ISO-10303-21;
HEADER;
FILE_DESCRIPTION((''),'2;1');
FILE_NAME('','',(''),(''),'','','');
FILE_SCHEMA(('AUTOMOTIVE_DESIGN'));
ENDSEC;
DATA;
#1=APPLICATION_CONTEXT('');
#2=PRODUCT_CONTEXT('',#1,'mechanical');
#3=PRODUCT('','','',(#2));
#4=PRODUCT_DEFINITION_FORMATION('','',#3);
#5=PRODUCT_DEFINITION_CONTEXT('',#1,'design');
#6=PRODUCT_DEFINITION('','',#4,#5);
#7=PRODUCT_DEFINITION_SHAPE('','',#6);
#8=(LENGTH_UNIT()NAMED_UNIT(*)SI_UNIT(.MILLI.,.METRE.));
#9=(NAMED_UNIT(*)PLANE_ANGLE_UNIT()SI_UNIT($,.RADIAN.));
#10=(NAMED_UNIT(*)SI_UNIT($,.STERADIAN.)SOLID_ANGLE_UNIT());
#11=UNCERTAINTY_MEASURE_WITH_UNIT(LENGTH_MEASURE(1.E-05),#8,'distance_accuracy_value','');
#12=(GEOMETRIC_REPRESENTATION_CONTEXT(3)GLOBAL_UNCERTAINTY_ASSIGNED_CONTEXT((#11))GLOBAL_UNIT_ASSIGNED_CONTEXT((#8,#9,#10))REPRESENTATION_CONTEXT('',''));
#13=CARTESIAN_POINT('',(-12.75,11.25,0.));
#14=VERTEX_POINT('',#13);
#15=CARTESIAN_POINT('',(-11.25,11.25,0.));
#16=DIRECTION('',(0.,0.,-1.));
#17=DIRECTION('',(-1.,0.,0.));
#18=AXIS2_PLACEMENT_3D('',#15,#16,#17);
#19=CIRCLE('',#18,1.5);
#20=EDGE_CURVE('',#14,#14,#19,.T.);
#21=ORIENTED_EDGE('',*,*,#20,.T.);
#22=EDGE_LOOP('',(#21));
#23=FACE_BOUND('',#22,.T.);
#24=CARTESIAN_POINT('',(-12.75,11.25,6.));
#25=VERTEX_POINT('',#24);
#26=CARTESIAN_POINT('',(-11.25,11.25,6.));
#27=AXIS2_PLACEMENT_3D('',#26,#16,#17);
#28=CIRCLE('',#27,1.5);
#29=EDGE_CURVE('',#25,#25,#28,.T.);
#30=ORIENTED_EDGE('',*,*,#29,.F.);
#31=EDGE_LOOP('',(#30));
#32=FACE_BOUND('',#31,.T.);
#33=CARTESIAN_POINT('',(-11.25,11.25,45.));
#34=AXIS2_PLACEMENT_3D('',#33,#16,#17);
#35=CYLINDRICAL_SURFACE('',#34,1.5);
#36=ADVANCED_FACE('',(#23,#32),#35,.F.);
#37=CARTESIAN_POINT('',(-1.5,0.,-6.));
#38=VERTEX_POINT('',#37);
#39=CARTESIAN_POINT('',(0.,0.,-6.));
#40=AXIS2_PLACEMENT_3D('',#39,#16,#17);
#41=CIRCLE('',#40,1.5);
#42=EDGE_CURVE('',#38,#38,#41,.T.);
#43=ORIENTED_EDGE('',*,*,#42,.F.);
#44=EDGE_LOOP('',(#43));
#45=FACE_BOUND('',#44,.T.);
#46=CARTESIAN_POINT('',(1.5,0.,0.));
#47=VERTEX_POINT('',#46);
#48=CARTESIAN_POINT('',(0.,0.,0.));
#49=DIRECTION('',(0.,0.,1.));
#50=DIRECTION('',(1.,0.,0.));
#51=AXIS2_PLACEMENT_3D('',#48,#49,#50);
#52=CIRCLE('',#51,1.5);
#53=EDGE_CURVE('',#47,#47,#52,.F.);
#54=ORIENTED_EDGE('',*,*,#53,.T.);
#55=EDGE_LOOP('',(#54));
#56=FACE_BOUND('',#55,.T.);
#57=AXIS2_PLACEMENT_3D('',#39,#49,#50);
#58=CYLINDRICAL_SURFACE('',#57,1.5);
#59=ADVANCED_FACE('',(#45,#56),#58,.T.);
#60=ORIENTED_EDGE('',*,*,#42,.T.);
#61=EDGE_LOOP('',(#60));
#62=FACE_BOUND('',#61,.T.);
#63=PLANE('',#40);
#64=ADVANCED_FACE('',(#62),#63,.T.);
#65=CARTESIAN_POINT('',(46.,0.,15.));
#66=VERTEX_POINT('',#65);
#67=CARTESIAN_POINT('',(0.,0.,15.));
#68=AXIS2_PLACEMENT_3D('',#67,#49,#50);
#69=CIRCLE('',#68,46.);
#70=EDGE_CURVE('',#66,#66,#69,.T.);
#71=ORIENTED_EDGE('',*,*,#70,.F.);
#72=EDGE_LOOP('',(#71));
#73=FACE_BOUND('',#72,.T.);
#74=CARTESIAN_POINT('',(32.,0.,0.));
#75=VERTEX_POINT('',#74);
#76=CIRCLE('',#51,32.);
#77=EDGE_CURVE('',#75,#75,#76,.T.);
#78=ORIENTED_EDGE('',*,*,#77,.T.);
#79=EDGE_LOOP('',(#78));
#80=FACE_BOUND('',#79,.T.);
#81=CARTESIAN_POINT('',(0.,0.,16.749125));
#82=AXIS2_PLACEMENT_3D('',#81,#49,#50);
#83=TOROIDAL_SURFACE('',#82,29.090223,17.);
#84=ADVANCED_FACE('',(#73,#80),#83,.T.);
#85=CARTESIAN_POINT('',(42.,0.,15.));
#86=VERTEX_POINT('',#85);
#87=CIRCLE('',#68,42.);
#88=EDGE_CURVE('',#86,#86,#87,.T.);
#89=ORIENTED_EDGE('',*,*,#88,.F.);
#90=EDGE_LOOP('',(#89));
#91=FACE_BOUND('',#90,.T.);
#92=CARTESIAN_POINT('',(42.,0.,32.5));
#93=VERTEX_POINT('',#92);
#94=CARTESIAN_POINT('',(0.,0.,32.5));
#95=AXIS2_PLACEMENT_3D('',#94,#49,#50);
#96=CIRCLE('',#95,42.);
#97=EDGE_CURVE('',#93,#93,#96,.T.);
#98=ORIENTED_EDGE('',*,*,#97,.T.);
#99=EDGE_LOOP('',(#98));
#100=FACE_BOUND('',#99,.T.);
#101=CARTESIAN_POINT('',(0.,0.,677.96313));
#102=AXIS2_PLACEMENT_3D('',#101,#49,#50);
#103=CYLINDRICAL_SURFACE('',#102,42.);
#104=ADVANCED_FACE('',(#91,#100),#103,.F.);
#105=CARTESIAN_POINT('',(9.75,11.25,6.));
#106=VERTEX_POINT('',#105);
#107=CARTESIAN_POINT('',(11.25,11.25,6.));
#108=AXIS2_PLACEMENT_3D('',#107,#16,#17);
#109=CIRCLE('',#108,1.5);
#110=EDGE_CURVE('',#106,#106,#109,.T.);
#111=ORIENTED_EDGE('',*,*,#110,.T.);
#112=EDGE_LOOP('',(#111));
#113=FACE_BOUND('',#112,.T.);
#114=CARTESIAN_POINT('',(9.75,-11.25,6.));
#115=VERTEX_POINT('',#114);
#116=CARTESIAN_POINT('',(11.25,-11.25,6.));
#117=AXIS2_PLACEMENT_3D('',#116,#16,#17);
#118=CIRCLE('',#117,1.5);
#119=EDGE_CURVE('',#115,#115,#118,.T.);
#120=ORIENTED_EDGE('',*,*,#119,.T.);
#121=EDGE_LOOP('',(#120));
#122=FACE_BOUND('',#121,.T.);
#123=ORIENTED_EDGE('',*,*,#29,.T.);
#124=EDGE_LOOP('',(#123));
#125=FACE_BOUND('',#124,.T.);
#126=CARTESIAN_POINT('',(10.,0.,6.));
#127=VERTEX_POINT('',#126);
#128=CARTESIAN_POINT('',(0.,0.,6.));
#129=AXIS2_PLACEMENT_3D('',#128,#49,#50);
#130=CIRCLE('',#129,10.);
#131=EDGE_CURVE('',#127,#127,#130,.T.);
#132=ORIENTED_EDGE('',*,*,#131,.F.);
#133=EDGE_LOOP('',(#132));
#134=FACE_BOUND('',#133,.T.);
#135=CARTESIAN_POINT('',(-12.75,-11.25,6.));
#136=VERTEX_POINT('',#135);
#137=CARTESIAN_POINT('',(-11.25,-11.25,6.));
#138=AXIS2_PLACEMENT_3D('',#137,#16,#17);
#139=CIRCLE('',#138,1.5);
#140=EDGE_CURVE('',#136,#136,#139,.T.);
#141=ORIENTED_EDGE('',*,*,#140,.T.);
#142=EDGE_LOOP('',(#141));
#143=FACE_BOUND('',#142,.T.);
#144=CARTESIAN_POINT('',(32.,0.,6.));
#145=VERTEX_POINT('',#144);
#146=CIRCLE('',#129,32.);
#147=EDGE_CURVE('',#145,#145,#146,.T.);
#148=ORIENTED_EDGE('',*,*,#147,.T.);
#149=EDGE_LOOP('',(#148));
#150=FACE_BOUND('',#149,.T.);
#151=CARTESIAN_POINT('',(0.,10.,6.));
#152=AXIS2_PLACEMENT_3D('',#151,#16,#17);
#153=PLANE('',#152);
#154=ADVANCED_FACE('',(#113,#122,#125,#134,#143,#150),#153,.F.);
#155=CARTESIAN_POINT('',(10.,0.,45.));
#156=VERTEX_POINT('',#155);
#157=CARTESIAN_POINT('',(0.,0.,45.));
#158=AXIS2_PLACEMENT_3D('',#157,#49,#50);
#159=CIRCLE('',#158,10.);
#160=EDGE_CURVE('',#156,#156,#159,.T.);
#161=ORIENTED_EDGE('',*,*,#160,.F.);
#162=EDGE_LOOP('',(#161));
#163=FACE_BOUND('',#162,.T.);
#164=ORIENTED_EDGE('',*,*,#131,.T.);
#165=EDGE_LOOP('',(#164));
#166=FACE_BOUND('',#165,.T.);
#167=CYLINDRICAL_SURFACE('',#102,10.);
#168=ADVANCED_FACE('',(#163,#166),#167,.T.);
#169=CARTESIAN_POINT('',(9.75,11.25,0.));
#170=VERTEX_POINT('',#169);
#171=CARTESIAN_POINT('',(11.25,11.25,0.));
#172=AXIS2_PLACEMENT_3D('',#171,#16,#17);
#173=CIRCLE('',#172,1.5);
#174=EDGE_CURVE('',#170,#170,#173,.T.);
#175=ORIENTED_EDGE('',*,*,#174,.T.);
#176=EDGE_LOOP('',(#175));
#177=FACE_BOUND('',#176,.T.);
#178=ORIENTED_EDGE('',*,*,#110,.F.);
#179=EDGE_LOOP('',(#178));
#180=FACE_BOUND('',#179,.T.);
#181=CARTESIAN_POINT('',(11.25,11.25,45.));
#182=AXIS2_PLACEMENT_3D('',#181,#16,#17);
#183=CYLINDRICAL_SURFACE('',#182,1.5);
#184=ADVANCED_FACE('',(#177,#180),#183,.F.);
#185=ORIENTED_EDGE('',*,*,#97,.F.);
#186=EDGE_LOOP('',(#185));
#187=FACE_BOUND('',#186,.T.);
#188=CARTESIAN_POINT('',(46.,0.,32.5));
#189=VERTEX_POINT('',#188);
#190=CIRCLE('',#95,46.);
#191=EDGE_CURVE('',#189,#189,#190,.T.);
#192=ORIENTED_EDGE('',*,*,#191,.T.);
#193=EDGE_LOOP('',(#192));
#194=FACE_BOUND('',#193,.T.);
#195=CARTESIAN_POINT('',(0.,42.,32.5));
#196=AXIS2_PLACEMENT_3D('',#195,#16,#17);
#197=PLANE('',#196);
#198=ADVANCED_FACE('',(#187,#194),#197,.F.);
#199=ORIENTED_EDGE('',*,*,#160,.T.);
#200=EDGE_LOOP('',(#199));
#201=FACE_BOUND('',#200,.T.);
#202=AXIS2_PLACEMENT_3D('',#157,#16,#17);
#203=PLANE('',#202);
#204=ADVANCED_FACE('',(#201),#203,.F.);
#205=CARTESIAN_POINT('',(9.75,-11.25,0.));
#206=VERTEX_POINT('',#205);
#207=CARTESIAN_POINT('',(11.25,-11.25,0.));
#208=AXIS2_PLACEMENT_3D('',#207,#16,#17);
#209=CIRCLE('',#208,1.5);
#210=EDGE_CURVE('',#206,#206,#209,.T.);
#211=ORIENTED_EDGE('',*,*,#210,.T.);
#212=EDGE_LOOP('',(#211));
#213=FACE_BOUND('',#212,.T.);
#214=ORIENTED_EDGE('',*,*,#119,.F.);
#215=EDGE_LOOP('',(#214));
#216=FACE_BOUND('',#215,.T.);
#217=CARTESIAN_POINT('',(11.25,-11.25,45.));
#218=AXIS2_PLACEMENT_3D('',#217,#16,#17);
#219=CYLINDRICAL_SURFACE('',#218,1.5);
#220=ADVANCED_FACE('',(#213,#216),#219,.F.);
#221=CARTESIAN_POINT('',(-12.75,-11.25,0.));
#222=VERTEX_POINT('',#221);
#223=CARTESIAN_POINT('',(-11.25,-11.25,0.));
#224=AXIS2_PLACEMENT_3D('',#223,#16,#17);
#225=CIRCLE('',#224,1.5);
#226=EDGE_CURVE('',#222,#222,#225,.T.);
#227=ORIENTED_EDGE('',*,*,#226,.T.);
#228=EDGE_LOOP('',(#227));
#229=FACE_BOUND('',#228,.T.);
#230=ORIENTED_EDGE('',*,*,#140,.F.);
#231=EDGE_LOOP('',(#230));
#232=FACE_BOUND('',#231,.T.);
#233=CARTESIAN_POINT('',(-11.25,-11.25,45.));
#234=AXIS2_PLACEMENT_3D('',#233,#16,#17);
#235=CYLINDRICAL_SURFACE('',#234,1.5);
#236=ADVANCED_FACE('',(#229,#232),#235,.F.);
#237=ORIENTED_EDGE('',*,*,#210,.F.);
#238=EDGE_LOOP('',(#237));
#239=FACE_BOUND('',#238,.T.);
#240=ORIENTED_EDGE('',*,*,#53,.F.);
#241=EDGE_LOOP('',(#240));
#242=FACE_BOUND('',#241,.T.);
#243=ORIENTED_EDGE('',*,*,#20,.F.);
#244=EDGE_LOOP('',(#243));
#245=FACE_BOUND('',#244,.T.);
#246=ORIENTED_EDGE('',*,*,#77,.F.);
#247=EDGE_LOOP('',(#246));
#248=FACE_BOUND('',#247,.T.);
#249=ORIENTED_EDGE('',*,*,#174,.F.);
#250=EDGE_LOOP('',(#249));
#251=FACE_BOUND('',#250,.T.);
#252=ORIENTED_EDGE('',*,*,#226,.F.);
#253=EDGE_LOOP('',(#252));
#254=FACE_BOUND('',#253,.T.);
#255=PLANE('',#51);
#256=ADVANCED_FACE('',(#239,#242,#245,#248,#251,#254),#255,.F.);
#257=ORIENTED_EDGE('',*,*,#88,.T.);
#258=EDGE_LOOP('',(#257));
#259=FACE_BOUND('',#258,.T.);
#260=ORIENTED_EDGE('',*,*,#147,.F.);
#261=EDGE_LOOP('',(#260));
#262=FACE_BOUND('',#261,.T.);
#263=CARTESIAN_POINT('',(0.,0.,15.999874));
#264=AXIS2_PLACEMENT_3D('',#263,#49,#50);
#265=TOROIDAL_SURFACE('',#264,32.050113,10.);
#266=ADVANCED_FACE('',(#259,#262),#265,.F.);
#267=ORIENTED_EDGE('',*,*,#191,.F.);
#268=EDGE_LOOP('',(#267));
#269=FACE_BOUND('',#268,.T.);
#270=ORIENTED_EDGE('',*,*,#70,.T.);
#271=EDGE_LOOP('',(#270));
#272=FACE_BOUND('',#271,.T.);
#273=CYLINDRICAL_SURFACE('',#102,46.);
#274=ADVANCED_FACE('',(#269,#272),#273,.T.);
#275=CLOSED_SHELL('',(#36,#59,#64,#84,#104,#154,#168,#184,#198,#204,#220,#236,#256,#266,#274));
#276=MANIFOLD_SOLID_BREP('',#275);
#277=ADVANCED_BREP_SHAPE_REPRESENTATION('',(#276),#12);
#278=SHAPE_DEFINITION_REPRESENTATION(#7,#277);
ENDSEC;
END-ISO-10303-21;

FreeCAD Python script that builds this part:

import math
import FreeCAD as App
import Part
import Sketcher

doc = App.newDocument("Part")
body = doc.addObject("PartDesign::Body", "Body")

# Sketch on YZ plane
sketch1 = body.newObject("Sketcher::SketchObject", "Sketch")
sketch1.AttachmentSupport = (doc.getObject("YZ_Plane"), [""])
sketch1.MapMode = "FlatFace"
sketch1.addGeometry(Part.LineSegment(App.Vector(0, 0, 0), App.Vector(32, 0, 0)), False)
sketch1.addGeometry(Part.ArcOfCircle(Part.Circle(App.Vector(29.1, 16.7, 0), App.Vector(0, 0, 1), 17), math.radians(-80), math.radians(-6)), False)
sketch1.addGeometry(Part.LineSegment(App.Vector(46, 15, 0), App.Vector(46, 32.5, 0)), False)
sketch1.addGeometry(Part.LineSegment(App.Vector(46, 32.5, 0), App.Vector(42, 32.5, 0)), False)
sketch1.addGeometry(Part.LineSegment(App.Vector(42, 32.5, 0), App.Vector(42, 15, 0)), False)
sketch1.addGeometry(Part.ArcOfCircle(Part.Circle(App.Vector(32.1, 16, 0), App.Vector(0, 0, 1), 10), math.radians(-90), math.radians(-6)), False)
sketch1.addGeometry(Part.LineSegment(App.Vector(32, 6, 0), App.Vector(10, 6, 0)), False)
sketch1.addGeometry(Part.LineSegment(App.Vector(10, 6, 0), App.Vector(10, 45, 0)), False)
sketch1.addGeometry(Part.LineSegment(App.Vector(10, 45, 0), App.Vector(0, 45, 0)), False)
sketch1.addGeometry(Part.LineSegment(App.Vector(0, 45, 0), App.Vector(0, 0, 0)), False)
sketch1.addConstraint(Sketcher.Constraint("Coincident", 0, 2, 1, 1))
sketch1.addConstraint(Sketcher.Constraint("Coincident", 1, 2, 2, 1))
sketch1.addConstraint(Sketcher.Constraint("Coincident", 2, 2, 3, 1))
sketch1.addConstraint(Sketcher.Constraint("Coincident", 3, 2, 4, 1))
sketch1.addConstraint(Sketcher.Constraint("Coincident", 4, 2, 5, 2))
sketch1.addConstraint(Sketcher.Constraint("Coincident", 5, 1, 6, 1))
sketch1.addConstraint(Sketcher.Constraint("Coincident", 6, 2, 7, 1))
sketch1.addConstraint(Sketcher.Constraint("Coincident", 7, 2, 8, 1))
sketch1.addConstraint(Sketcher.Constraint("Coincident", 8, 2, 9, 1))
sketch1.addConstraint(Sketcher.Constraint("Coincident", 9, 2, 0, 1))
sketch1.addConstraint(Sketcher.Constraint("Horizontal", 0))
sketch1.addConstraint(Sketcher.Constraint("Vertical", 2))
sketch1.addConstraint(Sketcher.Constraint("Horizontal", 3))
sketch1.addConstraint(Sketcher.Constraint("Vertical", 4))
sketch1.addConstraint(Sketcher.Constraint("Horizontal", 6))
sketch1.addConstraint(Sketcher.Constraint("Vertical", 7))
sketch1.addConstraint(Sketcher.Constraint("Horizontal", 8))
sketch1.addConstraint(Sketcher.Constraint("Vertical", 9))
sketch1.addConstraint(Sketcher.Constraint("Coincident", 9, 2, -1, 1))
sketch1.addConstraint(Sketcher.Constraint("Horizontal", 1, 2, 4, 2))
sketch1.addConstraint(Sketcher.Constraint("Vertical", 0, 2, 5, 1))
sketch1.addConstraint(Sketcher.Constraint("Radius", 1, 17.0))
sketch1.addConstraint(Sketcher.Constraint("Radius", 5, 10.0))
sketch1.addConstraint(Sketcher.Constraint("DistanceX", 0, 1, 0, 2, 32.0))
sketch1.addConstraint(Sketcher.Constraint("DistanceX", 3, 2, 3, 1, 4.0))
sketch1.addConstraint(Sketcher.Constraint("DistanceX", 6, 2, 6, 1, 22.0))
sketch1.addConstraint(Sketcher.Constraint("DistanceY", 7, 1, 7, 2, 39.0))
sketch1.addConstraint(Sketcher.Constraint("DistanceY", 9, 2, 9, 1, 45.0))
sketch1.addConstraint(Sketcher.Constraint("DistanceY", 2, 1, 2, 2, 17.5))
sketch1.addConstraint(Sketcher.Constraint("DistanceX", -1, 1, 1, 2, 46.0))
sketch1.addConstraint(Sketcher.Constraint("DistanceY", -1, 1, 1, 2, 15.0))
revolution = body.newObject("PartDesign::Revolution", "Revolution")
revolution.Profile = sketch1
revolution.ReferenceAxis = (sketch1, ["V_Axis"])
revolution.Angle = 360

# Sketch on XY plane
sketch2 = body.newObject("Sketcher::SketchObject", "Sketch001")
sketch2.AttachmentSupport = (doc.getObject("XY_Plane"), [""])
sketch2.MapMode = "FlatFace"
sketch2.addGeometry(Part.Circle(App.Vector(11.2, 11.2, 0), App.Vector(0, 0, 1), 1.5), False)
sketch2.addGeometry(Part.Circle(App.Vector(-11.2, 11.2, 0), App.Vector(0, 0, 1), 1.5), False)
sketch2.addGeometry(Part.Circle(App.Vector(-11.2, -11.2, 0), App.Vector(0, 0, 1), 1.5), False)
sketch2.addGeometry(Part.Circle(App.Vector(11.2, -11.2, 0), App.Vector(0, 0, 1), 1.5), False)
sketch2.addConstraint(Sketcher.Constraint("Equal", 0, 1))
sketch2.addConstraint(Sketcher.Constraint("Equal", 1, 2))
sketch2.addConstraint(Sketcher.Constraint("Equal", 2, 3))
sketch2.addConstraint(Sketcher.Constraint("Symmetric", 0, 3, 2, 3, -1, 1))
sketch2.addConstraint(Sketcher.Constraint("Symmetric", 1, 3, 3, 3, -1, 1))
sketch2.addConstraint(Sketcher.Constraint("Symmetric", 0, 3, 1, 3, -2))
sketch2.addConstraint(Sketcher.Constraint("Diameter", 0, 3.0))
sketch2.addConstraint(Sketcher.Constraint("DistanceX", 1, 3, 0, 3, 22.5))
sketch2.addConstraint(Sketcher.Constraint("DistanceY", 2, 3, 1, 3, 22.5))
pocket1 = body.newObject("PartDesign::Pocket", "Pocket")
pocket1.Profile = sketch2
pocket1.Type = "ThroughAll"
pocket1.Reversed = True

# Sketch on XY plane
sketch3 = body.newObject("Sketcher::SketchObject", "Sketch002")
sketch3.AttachmentSupport = (doc.getObject("XY_Plane"), [""])
sketch3.MapMode = "FlatFace"
sketch3.addGeometry(Part.Circle(App.Vector(0, 0, 0), App.Vector(0, 0, 1), 1.5), False)
sketch3.addConstraint(Sketcher.Constraint("Coincident", 0, 3, -1, 1))
sketch3.addConstraint(Sketcher.Constraint("Diameter", 0, 3.0))
pad1 = body.newObject("PartDesign::Pad", "Pad")
pad1.Profile = sketch3
pad1.Length = 6
pad1.Reversed = True

doc.recompute()
